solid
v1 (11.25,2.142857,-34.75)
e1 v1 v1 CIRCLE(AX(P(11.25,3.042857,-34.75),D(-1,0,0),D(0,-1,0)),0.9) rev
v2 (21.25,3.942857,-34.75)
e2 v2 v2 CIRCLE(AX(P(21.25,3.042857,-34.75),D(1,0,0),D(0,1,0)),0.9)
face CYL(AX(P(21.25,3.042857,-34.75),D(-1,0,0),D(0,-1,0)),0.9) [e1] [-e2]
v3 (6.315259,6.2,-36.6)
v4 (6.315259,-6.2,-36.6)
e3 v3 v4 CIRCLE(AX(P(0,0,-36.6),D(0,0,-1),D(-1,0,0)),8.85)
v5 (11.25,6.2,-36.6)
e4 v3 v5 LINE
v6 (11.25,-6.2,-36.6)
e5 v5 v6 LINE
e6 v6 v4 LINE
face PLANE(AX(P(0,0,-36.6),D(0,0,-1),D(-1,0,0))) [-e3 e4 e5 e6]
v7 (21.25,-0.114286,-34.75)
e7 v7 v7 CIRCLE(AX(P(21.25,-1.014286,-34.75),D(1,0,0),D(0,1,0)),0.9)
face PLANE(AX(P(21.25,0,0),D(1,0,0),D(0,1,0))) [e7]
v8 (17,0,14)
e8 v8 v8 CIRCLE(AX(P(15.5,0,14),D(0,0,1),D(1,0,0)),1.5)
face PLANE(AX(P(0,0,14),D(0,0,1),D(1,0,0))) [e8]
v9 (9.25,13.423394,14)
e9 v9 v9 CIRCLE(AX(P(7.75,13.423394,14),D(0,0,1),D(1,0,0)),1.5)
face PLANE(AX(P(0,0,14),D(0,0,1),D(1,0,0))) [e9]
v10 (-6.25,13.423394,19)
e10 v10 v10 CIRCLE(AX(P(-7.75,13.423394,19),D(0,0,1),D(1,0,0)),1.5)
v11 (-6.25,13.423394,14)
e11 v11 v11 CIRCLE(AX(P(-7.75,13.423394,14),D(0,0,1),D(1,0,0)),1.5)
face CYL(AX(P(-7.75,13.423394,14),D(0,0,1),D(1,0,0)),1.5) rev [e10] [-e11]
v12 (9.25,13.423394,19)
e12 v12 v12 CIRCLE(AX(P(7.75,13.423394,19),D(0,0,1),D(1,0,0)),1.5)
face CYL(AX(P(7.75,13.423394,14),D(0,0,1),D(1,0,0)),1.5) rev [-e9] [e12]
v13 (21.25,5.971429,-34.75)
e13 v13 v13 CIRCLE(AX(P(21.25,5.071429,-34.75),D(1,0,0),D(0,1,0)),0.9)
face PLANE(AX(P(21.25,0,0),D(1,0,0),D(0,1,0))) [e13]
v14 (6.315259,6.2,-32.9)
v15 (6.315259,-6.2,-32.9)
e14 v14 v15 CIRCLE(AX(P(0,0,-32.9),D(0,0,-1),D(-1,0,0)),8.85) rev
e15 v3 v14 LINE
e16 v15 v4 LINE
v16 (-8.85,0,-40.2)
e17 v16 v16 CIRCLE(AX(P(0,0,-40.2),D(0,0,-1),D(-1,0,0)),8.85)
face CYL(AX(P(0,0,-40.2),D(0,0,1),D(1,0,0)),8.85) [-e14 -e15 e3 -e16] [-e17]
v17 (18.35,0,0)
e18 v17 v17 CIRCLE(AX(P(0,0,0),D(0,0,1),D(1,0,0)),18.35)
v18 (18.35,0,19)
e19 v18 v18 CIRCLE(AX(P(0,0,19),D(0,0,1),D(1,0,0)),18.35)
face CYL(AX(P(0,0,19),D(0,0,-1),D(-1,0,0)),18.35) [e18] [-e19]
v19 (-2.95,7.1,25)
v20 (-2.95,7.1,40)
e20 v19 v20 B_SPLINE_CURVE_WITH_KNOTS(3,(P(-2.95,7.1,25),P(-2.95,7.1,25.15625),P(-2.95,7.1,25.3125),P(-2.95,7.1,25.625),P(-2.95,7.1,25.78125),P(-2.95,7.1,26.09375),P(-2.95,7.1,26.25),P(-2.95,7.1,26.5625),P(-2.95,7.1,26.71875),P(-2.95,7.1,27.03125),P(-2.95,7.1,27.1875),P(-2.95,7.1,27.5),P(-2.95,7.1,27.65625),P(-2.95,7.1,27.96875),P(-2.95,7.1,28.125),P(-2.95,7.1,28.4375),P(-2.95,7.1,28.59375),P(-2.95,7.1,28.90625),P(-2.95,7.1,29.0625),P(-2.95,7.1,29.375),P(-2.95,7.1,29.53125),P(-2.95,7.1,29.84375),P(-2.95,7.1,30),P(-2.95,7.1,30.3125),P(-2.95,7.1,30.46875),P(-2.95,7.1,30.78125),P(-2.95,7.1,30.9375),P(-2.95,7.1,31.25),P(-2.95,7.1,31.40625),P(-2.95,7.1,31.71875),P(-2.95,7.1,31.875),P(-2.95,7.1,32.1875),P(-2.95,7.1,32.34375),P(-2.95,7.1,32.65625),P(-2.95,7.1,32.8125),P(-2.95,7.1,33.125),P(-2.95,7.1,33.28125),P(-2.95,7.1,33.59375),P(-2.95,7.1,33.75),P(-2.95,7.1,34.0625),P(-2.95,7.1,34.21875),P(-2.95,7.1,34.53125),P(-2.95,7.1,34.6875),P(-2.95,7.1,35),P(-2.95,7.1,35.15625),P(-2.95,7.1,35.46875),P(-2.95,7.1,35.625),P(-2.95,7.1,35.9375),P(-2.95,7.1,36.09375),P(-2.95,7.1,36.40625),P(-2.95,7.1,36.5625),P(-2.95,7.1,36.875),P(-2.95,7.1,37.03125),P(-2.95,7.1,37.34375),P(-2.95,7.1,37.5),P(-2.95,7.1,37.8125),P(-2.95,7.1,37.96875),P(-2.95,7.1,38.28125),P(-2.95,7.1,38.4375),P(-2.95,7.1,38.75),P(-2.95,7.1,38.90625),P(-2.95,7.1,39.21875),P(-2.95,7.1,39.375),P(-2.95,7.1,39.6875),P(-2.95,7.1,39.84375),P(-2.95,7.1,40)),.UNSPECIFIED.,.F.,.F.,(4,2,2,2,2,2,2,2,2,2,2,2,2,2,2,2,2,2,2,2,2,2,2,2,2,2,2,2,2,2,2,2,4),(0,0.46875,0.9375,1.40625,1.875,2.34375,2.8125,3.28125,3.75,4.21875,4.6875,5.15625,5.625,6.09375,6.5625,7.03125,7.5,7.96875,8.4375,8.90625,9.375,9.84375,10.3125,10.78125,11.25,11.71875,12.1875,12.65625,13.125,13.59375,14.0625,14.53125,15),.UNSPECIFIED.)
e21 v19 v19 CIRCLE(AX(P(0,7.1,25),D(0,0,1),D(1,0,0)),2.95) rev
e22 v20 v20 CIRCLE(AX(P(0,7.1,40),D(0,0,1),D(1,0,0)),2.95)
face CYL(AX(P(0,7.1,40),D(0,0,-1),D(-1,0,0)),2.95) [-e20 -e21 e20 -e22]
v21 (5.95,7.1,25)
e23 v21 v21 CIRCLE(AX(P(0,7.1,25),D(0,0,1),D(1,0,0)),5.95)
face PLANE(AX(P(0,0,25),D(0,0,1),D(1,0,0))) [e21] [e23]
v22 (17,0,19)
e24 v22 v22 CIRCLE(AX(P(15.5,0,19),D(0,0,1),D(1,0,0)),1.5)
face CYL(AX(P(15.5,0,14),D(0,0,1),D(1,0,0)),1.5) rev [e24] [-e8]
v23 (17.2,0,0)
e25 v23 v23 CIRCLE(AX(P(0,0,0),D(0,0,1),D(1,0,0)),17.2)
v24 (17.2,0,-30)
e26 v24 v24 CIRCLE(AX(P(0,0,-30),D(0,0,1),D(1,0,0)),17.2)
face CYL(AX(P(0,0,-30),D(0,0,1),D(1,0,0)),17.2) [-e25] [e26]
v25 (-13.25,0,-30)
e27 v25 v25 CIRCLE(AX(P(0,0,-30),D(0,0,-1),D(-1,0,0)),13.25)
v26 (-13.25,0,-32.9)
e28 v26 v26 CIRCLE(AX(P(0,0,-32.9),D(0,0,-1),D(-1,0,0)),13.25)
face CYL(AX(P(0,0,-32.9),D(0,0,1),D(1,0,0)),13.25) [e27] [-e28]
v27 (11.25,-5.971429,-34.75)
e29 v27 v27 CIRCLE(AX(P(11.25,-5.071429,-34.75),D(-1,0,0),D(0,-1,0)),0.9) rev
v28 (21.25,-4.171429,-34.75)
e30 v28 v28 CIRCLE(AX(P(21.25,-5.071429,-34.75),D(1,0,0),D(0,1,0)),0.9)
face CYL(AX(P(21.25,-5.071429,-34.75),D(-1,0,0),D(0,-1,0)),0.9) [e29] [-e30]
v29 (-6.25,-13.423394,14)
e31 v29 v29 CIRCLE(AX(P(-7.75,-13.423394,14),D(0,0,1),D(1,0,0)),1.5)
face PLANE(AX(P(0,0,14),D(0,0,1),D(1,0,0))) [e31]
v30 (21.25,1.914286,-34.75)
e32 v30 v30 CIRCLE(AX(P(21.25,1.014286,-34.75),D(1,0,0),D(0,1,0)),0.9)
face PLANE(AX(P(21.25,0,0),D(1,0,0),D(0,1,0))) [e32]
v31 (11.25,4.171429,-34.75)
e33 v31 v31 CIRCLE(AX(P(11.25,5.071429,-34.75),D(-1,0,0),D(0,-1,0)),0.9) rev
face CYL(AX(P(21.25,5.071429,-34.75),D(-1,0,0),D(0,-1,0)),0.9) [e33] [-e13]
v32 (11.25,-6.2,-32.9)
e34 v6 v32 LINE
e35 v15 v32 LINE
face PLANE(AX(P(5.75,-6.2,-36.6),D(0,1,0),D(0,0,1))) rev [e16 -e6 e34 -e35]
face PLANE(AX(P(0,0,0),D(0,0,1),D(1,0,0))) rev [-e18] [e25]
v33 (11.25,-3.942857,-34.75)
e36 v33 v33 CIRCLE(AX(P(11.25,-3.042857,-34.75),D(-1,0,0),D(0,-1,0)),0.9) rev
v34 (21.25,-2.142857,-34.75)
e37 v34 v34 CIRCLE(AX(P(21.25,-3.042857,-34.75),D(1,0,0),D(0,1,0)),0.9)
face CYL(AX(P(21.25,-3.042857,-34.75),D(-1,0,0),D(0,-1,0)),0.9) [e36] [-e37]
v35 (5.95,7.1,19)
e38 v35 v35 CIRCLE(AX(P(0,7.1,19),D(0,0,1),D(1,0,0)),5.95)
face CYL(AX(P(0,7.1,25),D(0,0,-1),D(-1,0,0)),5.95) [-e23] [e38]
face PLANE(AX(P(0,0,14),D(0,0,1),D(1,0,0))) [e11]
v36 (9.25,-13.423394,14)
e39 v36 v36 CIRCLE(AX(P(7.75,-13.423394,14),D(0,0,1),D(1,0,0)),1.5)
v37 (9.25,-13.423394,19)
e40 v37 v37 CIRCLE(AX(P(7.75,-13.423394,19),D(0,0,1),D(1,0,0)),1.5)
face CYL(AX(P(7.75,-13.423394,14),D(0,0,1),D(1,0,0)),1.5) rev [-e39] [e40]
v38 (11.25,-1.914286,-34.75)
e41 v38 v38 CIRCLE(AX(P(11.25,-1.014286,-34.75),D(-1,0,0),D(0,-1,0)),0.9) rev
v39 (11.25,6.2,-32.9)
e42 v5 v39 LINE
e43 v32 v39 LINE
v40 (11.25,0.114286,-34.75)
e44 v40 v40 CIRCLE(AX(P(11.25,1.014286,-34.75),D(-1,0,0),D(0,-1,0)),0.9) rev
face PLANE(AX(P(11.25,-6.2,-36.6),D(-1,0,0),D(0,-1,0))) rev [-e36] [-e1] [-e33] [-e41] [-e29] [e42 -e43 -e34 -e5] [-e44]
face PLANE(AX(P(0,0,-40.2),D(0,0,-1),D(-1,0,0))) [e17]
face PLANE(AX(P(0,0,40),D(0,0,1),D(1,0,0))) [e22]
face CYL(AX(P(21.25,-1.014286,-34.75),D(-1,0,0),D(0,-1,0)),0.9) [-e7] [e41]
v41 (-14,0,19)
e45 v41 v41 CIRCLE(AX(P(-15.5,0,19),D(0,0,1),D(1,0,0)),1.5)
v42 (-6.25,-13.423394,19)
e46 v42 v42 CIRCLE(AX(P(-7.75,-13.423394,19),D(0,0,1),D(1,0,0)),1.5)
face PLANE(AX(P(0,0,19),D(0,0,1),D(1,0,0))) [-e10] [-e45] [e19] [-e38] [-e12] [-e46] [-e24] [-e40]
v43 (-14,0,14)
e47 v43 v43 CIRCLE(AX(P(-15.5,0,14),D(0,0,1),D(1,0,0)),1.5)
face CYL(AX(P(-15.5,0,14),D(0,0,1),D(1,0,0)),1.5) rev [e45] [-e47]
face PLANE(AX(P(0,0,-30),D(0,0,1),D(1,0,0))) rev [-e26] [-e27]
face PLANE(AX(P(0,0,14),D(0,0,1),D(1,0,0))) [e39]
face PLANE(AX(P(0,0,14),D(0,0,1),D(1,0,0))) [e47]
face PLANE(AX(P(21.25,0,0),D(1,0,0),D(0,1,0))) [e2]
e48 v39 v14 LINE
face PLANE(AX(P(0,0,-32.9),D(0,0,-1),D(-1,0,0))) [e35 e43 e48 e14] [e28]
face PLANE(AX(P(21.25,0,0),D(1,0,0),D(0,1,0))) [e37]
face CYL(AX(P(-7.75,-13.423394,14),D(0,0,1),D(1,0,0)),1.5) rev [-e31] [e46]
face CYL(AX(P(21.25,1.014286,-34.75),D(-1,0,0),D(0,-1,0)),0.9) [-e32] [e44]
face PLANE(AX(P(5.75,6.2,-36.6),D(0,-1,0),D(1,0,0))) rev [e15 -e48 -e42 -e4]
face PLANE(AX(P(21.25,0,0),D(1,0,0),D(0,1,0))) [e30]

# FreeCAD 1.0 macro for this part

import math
import FreeCAD as App
import Part
import Sketcher

V = App.Vector


def add_polygon(sketch, points):
    """Adds a closed chain of lines whose ends are joined by coincident constraints."""
    first, n = sketch.GeometryCount, len(points)
    for a, b in zip(points, points[1:] + points[:1]):
        sketch.addGeometry(Part.LineSegment(App.Vector(*a, 0), App.Vector(*b, 0)), False)
    for i in range(n):
        sketch.addConstraint(Sketcher.Constraint("Coincident", first + i, 2, first + (i + 1) % n, 1))

doc = App.newDocument("Part")
body = doc.addObject("PartDesign::Body", "Body")

# Sketch on XY plane
sketch1 = body.newObject("Sketcher::SketchObject", "Sketch")
sketch1.AttachmentSupport = (doc.getObject("XY_Plane"), [""])
sketch1.MapMode = "FlatFace"
sketch1.addGeometry(Part.Circle(V(0, 0, 0), V(0, 0, 1), 18), False)
sketch1.addConstraint(Sketcher.Constraint("Coincident", 0, 3, -1, 1))
sketch1.addConstraint(Sketcher.Constraint("Diameter", 0, 36.7))
pad1 = body.newObject("PartDesign::Pad", "Pad")
pad1.Profile = sketch1
pad1.Length = 19

# Sketch on XY plane
sketch2 = body.newObject("Sketcher::SketchObject", "Sketch001")
sketch2.AttachmentSupport = (doc.getObject("XY_Plane"), [""])
sketch2.MapMode = "FlatFace"
sketch2.addGeometry(Part.Circle(V(0, 0, 0), V(0, 0, 1), 17), False)
sketch2.addConstraint(Sketcher.Constraint("Coincident", 0, 3, -1, 1))
sketch2.addConstraint(Sketcher.Constraint("Diameter", 0, 34.4))
pad2 = body.newObject("PartDesign::Pad", "Pad001")
pad2.Profile = sketch2
pad2.Length = 30
pad2.Reversed = True

# Sketch on XY plane
sketch3 = body.newObject("Sketcher::SketchObject", "Sketch002")
sketch3.AttachmentSupport = (doc.getObject("XY_Plane"), [""])
sketch3.MapMode = "FlatFace"
sketch3.AttachmentOffset = App.Placement(V(0, 0, 19), App.Rotation())
sketch3.addGeometry(Part.Circle(V(-7.8, 13.4, 0), V(0, 0, 1), 1.5), False)
sketch3.addGeometry(Part.Circle(V(7.8, 13.4, 0), V(0, 0, 1), 1.5), False)
sketch3.addGeometry(Part.Circle(V(15.5, 0, 0), V(0, 0, 1), 1.5), False)
sketch3.addGeometry(Part.Circle(V(7.8, -13.4, 0), V(0, 0, 1), 1.5), False)
sketch3.addGeometry(Part.Circle(V(-7.8, -13.4, 0), V(0, 0, 1), 1.5), False)
sketch3.addGeometry(Part.Circle(V(-15.5, 0, 0), V(0, 0, 1), 1.5), False)
sketch3.addConstraint(Sketcher.Constraint("Equal", 0, 1))
sketch3.addConstraint(Sketcher.Constraint("Equal", 1, 2))
sketch3.addConstraint(Sketcher.Constraint("Equal", 2, 3))
sketch3.addConstraint(Sketcher.Constraint("Equal", 3, 4))
sketch3.addConstraint(Sketcher.Constraint("Equal", 4, 5))
sketch3.addConstraint(Sketcher.Constraint("Symmetric", 0, 3, 3, 3, -1, 1))
sketch3.addConstraint(Sketcher.Constraint("Symmetric", 1, 3, 4, 3, -1, 1))
sketch3.addConstraint(Sketcher.Constraint("Symmetric", 2, 3, 5, 3, -1, 1))
sketch3.addConstraint(Sketcher.Constraint("Symmetric", 0, 3, 1, 3, -2))
sketch3.addConstraint(Sketcher.Constraint("PointOnObject", 2, 3, -1))
sketch3.addConstraint(Sketcher.Constraint("Diameter", 0, 3.0))
sketch3.addConstraint(Sketcher.Constraint("DistanceX", 5, 3, 2, 3, 31.0))
sketch3.addConstraint(Sketcher.Constraint("DistanceX", 0, 3, 1, 3, 15.5))
sketch3.addConstraint(Sketcher.Constraint("DistanceY", -1, 1, 0, 3, 13.423394))
pocket1 = body.newObject("PartDesign::Pocket", "Pocket")
pocket1.Profile = sketch3
pocket1.Length = 5

# Sketch on XY plane
sketch4 = body.newObject("Sketcher::SketchObject", "Sketch003")
sketch4.AttachmentSupport = (doc.getObject("XY_Plane"), [""])
sketch4.MapMode = "FlatFace"
sketch4.AttachmentOffset = App.Placement(V(0, 0, 19), App.Rotation())
sketch4.addGeometry(Part.Circle(V(0, 7, 0), V(0, 0, 1), 6), False)
sketch4.addConstraint(Sketcher.Constraint("PointOnObject", 0, 3, -2))
sketch4.addConstraint(Sketcher.Constraint("Diameter", 0, 11.9))
sketch4.addConstraint(Sketcher.Constraint("DistanceY", -1, 1, 0, 3, 7.1))
pad3 = body.newObject("PartDesign::Pad", "Pad002")
pad3.Profile = sketch4
pad3.Length = 6

# Sketch on XY plane
sketch5 = body.newObject("Sketcher::SketchObject", "Sketch004")
sketch5.AttachmentSupport = (doc.getObject("XY_Plane"), [""])
sketch5.MapMode = "FlatFace"
sketch5.AttachmentOffset = App.Placement(V(0, 0, 19), App.Rotation())
sketch5.addGeometry(Part.Circle(V(0, 7.1, 0), V(0, 0, 1), 3), False)
sketch5.addConstraint(Sketcher.Constraint("PointOnObject", 0, 3, -2))
sketch5.addConstraint(Sketcher.Constraint("Diameter", 0, 5.9))
sketch5.addConstraint(Sketcher.Constraint("DistanceY", -1, 1, 0, 3, 7.1))
pad4 = body.newObject("PartDesign::Pad", "Pad003")
pad4.Profile = sketch5
pad4.Length = 21

# Sketch on XY plane
sketch6 = body.newObject("Sketcher::SketchObject", "Sketch005")
sketch6.AttachmentSupport = (doc.getObject("XY_Plane"), [""])
sketch6.MapMode = "FlatFace"
sketch6.AttachmentOffset = App.Placement(V(0, 0, -30), App.Rotation())
sketch6.addGeometry(Part.Circle(V(0, 0, 0), V(0, 0, 1), 13), False)
sketch6.addConstraint(Sketcher.Constraint("Coincident", 0, 3, -1, 1))
sketch6.addConstraint(Sketcher.Constraint("Diameter", 0, 26.5))
pad5 = body.newObject("PartDesign::Pad", "Pad004")
pad5.Profile = sketch6
pad5.Length = 2.9
pad5.Reversed = True

# Sketch on XY plane
sketch7 = body.newObject("Sketcher::SketchObject", "Sketch006")
sketch7.AttachmentSupport = (doc.getObject("XY_Plane"), [""])
sketch7.MapMode = "FlatFace"
sketch7.AttachmentOffset = App.Placement(V(0, 0, -30), App.Rotation())
sketch7.addGeometry(Part.Circle(V(0, 0, 0), V(0, 0, 1), 9), False)
sketch7.addConstraint(Sketcher.Constraint("Coincident", 0, 3, -1, 1))
sketch7.addConstraint(Sketcher.Constraint("Diameter", 0, 17.7))
pad6 = body.newObject("PartDesign::Pad", "Pad005")
pad6.Profile = sketch7
pad6.Length = 10.2
pad6.Reversed = True

# Sketch on XY plane
sketch8 = body.newObject("Sketcher::SketchObject", "Sketch007")
sketch8.AttachmentSupport = (doc.getObject("XY_Plane"), [""])
sketch8.MapMode = "FlatFace"
sketch8.AttachmentOffset = App.Placement(V(0, 0, -30), App.Rotation())
add_polygon(sketch8, [(11, 6), (11, -6), (6, -6), (6, 6)])  # lines 0-3
sketch8.addConstraint(Sketcher.Constraint("Vertical", 0))
sketch8.addConstraint(Sketcher.Constraint("Horizontal", 1))
sketch8.addConstraint(Sketcher.Constraint("Vertical", 2))
sketch8.addConstraint(Sketcher.Constraint("Horizontal", 3))
sketch8.addConstraint(Sketcher.Constraint("DistanceX", 1, 2, 1, 1, 5.5))
sketch8.addConstraint(Sketcher.Constraint("DistanceY", 0, 2, 0, 1, 12.4))
sketch8.addConstraint(Sketcher.Constraint("DistanceY", 0, 2, -1, 1, 6.2))
sketch8.addConstraint(Sketcher.Constraint("DistanceX", -1, 1, 0, 2, 11.25))
pad7 = body.newObject("PartDesign::Pad", "Pad006")
pad7.Profile = sketch8
pad7.Length = 6.6
pad7.Reversed = True

# Sketch on YZ plane
sketch9 = body.newObject("Sketcher::SketchObject", "Sketch008")
sketch9.AttachmentSupport = (doc.getObject("YZ_Plane"), [""])
sketch9.MapMode = "FlatFace"
sketch9.AttachmentOffset = App.Placement(V(0, 0, 11.25), App.Rotation())
sketch9.addGeometry(Part.ArcOfCircle(Part.Circle(V(5.1, -34.8, 0), V(0, 0, 1), 0.9), math.radians(-90), math.radians(0)), False)
sketch9.addGeometry(Part.ArcOfCircle(Part.Circle(V(5.1, -34.8, 0), V(0, 0, 1), 0.9), math.radians(0), math.radians(180)), False)
sketch9.addGeometry(Part.ArcOfCircle(Part.Circle(V(5.1, -34.8, 0), V(0, 0, 1), 0.9), math.radians(180), math.radians(270)), False)
sketch9.addGeometry(Part.ArcOfCircle(Part.Circle(V(3, -34.8, 0), V(0, 0, 1), 0.9), math.radians(-90), math.radians(0)), False)
sketch9.addGeometry(Part.ArcOfCircle(Part.Circle(V(3, -34.8, 0), V(0, 0, 1), 0.9), math.radians(0), math.radians(180)), False)
sketch9.addGeometry(Part.ArcOfCircle(Part.Circle(V(3, -34.8, 0), V(0, 0, 1), 0.9), math.radians(180), math.radians(270)), False)
sketch9.addGeometry(Part.ArcOfCircle(Part.Circle(V(1, -34.8, 0), V(0, 0, 1), 0.9), math.radians(-90), math.radians(0)), False)
sketch9.addGeometry(Part.ArcOfCircle(Part.Circle(V(1, -34.8, 0), V(0, 0, 1), 0.9), math.radians(0), math.radians(180)), False)
sketch9.addGeometry(Part.ArcOfCircle(Part.Circle(V(1, -34.8, 0), V(0, 0, 1), 0.9), math.radians(180), math.radians(270)), False)
sketch9.addGeometry(Part.ArcOfCircle(Part.Circle(V(-1, -34.8, 0), V(0, 0, 1), 0.9), math.radians(-90), math.radians(0)), False)
sketch9.addGeometry(Part.ArcOfCircle(Part.Circle(V(-1, -34.8, 0), V(0, 0, 1), 0.9), math.radians(0), math.radians(180)), False)
sketch9.addGeometry(Part.ArcOfCircle(Part.Circle(V(-1, -34.8, 0), V(0, 0, 1), 0.9), math.radians(180), math.radians(270)), False)
sketch9.addGeometry(Part.ArcOfCircle(Part.Circle(V(-3, -34.8, 0), V(0, 0, 1), 0.9), math.radians(-90), math.radians(0)), False)
sketch9.addGeometry(Part.ArcOfCircle(Part.Circle(V(-3, -34.8, 0), V(0, 0, 1), 0.9), math.radians(0), math.radians(180)), False)
sketch9.addGeometry(Part.ArcOfCircle(Part.Circle(V(-3, -34.8, 0), V(0, 0, 1), 0.9), math.radians(180), math.radians(270)), False)
sketch9.addGeometry(Part.ArcOfCircle(Part.Circle(V(-5.1, -34.8, 0), V(0, 0, 1), 0.9), math.radians(-90), math.radians(0)), False)
sketch9.addGeometry(Part.ArcOfCircle(Part.Circle(V(-5.1, -34.8, 0), V(0, 0, 1), 0.9), math.radians(0), math.radians(180)), False)
sketch9.addGeometry(Part.ArcOfCircle(Part.Circle(V(-5.1, -34.8, 0), V(0, 0, 1), 0.9), math.radians(180), math.radians(270)), False)
sketch9.addConstraint(Sketcher.Constraint("Tangent", 0, 2, 1, 1))
sketch9.addConstraint(Sketcher.Constraint("Tangent", 1, 2, 2, 1))
sketch9.addConstraint(Sketcher.Constraint("Tangent", 2, 2, 0, 1))
sketch9.addConstraint(Sketcher.Constraint("Tangent", 3, 2, 4, 1))
sketch9.addConstraint(Sketcher.Constraint("Tangent", 4, 2, 5, 1))
sketch9.addConstraint(Sketcher.Constraint("Tangent", 5, 2, 3, 1))
sketch9.addConstraint(Sketcher.Constraint("Tangent", 6, 2, 7, 1))
sketch9.addConstraint(Sketcher.Constraint("Tangent", 7, 2, 8, 1))
sketch9.addConstraint(Sketcher.Constraint("Tangent", 8, 2, 6, 1))
sketch9.addConstraint(Sketcher.Constraint("Tangent", 9, 2, 10, 1))
sketch9.addConstraint(Sketcher.Constraint("Tangent", 10, 2, 11, 1))
sketch9.addConstraint(Sketcher.Constraint("Tangent", 11, 2, 9, 1))
sketch9.addConstraint(Sketcher.Constraint("Tangent", 12, 2, 13, 1))
sketch9.addConstraint(Sketcher.Constraint("Tangent", 13, 2, 14, 1))
sketch9.addConstraint(Sketcher.Constraint("Tangent", 14, 2, 12, 1))
sketch9.addConstraint(Sketcher.Constraint("Tangent", 15, 2, 16, 1))
sketch9.addConstraint(Sketcher.Constraint("Tangent", 16, 2, 17, 1))
sketch9.addConstraint(Sketcher.Constraint("Tangent", 17, 2, 15, 1))
sketch9.addConstraint(Sketcher.Constraint("Equal", 2, 3))
sketch9.addConstraint(Sketcher.Constraint("Equal", 5, 6))
sketch9.addConstraint(Sketcher.Constraint("Equal", 8, 9))
sketch9.addConstraint(Sketcher.Constraint("Equal", 11, 12))
sketch9.addConstraint(Sketcher.Constraint("Equal", 14, 15))
sketch9.addConstraint(Sketcher.Constraint("Symmetric", 6, 3, 9, 3, -2))
sketch9.addConstraint(Sketcher.Constraint("Symmetric", 3, 3, 12, 3, -2))
sketch9.addConstraint(Sketcher.Constraint("Symmetric", 0, 3, 15, 3, -2))
sketch9.addConstraint(Sketcher.Constraint("Horizontal", 2, 3, 3, 3))
sketch9.addConstraint(Sketcher.Constraint("Horizontal", 5, 3, 6, 3))
sketch9.addConstraint(Sketcher.Constraint("Horizontal", 17, 3, 0, 2))
sketch9.addConstraint(Sketcher.Constraint("Horizontal", 0, 2, 1, 2))
sketch9.addConstraint(Sketcher.Constraint("Horizontal", 1, 2, 3, 2))
sketch9.addConstraint(Sketcher.Constraint("Horizontal", 3, 2, 4, 2))
sketch9.addConstraint(Sketcher.Constraint("Horizontal", 4, 2, 6, 2))
sketch9.addConstraint(Sketcher.Constraint("Horizontal", 6, 2, 7, 2))
sketch9.addConstraint(Sketcher.Constraint("Horizontal", 7, 2, 9, 2))
sketch9.addConstraint(Sketcher.Constraint("Horizontal", 9, 2, 10, 2))
sketch9.addConstraint(Sketcher.Constraint("Horizontal", 10, 2, 12, 2))
sketch9.addConstraint(Sketcher.Constraint("Horizontal", 12, 2, 13, 2))
sketch9.addConstraint(Sketcher.Constraint("Horizontal", 13, 2, 15, 2))
sketch9.addConstraint(Sketcher.Constraint("Horizontal", 15, 2, 16, 2))
sketch9.addConstraint(Sketcher.Constraint("Vertical", 1, 3, 2, 2))
sketch9.addConstraint(Sketcher.Constraint("Vertical", 4, 3, 5, 2))
sketch9.addConstraint(Sketcher.Constraint("Vertical", 7, 3, 8, 2))
sketch9.addConstraint(Sketcher.Constraint("Vertical", 10, 3, 11, 2))
sketch9.addConstraint(Sketcher.Constraint("Vertical", 13, 3, 14, 2))
sketch9.addConstraint(Sketcher.Constraint("Vertical", 16, 3, 17, 2))
sketch9.addConstraint(Sketcher.Constraint("Radius", 0, 0.9))
sketch9.addConstraint(Sketcher.Constraint("DistanceY", 0, 3, -1, 1, 34.75))
sketch9.addConstraint(Sketcher.Constraint("DistanceX", -1, 1, 0, 3, 5.071429))
sketch9.addConstraint(Sketcher.Constraint("DistanceX", 3, 3, 0, 3, 2.028571))
sketch9.addConstraint(Sketcher.Constraint("DistanceX", 6, 3, 3, 3, 2.028571))
pad8 = body.newObject("PartDesign::Pad", "Pad007")
pad8.Profile = sketch9
pad8.Length = 10

doc.recompute()
